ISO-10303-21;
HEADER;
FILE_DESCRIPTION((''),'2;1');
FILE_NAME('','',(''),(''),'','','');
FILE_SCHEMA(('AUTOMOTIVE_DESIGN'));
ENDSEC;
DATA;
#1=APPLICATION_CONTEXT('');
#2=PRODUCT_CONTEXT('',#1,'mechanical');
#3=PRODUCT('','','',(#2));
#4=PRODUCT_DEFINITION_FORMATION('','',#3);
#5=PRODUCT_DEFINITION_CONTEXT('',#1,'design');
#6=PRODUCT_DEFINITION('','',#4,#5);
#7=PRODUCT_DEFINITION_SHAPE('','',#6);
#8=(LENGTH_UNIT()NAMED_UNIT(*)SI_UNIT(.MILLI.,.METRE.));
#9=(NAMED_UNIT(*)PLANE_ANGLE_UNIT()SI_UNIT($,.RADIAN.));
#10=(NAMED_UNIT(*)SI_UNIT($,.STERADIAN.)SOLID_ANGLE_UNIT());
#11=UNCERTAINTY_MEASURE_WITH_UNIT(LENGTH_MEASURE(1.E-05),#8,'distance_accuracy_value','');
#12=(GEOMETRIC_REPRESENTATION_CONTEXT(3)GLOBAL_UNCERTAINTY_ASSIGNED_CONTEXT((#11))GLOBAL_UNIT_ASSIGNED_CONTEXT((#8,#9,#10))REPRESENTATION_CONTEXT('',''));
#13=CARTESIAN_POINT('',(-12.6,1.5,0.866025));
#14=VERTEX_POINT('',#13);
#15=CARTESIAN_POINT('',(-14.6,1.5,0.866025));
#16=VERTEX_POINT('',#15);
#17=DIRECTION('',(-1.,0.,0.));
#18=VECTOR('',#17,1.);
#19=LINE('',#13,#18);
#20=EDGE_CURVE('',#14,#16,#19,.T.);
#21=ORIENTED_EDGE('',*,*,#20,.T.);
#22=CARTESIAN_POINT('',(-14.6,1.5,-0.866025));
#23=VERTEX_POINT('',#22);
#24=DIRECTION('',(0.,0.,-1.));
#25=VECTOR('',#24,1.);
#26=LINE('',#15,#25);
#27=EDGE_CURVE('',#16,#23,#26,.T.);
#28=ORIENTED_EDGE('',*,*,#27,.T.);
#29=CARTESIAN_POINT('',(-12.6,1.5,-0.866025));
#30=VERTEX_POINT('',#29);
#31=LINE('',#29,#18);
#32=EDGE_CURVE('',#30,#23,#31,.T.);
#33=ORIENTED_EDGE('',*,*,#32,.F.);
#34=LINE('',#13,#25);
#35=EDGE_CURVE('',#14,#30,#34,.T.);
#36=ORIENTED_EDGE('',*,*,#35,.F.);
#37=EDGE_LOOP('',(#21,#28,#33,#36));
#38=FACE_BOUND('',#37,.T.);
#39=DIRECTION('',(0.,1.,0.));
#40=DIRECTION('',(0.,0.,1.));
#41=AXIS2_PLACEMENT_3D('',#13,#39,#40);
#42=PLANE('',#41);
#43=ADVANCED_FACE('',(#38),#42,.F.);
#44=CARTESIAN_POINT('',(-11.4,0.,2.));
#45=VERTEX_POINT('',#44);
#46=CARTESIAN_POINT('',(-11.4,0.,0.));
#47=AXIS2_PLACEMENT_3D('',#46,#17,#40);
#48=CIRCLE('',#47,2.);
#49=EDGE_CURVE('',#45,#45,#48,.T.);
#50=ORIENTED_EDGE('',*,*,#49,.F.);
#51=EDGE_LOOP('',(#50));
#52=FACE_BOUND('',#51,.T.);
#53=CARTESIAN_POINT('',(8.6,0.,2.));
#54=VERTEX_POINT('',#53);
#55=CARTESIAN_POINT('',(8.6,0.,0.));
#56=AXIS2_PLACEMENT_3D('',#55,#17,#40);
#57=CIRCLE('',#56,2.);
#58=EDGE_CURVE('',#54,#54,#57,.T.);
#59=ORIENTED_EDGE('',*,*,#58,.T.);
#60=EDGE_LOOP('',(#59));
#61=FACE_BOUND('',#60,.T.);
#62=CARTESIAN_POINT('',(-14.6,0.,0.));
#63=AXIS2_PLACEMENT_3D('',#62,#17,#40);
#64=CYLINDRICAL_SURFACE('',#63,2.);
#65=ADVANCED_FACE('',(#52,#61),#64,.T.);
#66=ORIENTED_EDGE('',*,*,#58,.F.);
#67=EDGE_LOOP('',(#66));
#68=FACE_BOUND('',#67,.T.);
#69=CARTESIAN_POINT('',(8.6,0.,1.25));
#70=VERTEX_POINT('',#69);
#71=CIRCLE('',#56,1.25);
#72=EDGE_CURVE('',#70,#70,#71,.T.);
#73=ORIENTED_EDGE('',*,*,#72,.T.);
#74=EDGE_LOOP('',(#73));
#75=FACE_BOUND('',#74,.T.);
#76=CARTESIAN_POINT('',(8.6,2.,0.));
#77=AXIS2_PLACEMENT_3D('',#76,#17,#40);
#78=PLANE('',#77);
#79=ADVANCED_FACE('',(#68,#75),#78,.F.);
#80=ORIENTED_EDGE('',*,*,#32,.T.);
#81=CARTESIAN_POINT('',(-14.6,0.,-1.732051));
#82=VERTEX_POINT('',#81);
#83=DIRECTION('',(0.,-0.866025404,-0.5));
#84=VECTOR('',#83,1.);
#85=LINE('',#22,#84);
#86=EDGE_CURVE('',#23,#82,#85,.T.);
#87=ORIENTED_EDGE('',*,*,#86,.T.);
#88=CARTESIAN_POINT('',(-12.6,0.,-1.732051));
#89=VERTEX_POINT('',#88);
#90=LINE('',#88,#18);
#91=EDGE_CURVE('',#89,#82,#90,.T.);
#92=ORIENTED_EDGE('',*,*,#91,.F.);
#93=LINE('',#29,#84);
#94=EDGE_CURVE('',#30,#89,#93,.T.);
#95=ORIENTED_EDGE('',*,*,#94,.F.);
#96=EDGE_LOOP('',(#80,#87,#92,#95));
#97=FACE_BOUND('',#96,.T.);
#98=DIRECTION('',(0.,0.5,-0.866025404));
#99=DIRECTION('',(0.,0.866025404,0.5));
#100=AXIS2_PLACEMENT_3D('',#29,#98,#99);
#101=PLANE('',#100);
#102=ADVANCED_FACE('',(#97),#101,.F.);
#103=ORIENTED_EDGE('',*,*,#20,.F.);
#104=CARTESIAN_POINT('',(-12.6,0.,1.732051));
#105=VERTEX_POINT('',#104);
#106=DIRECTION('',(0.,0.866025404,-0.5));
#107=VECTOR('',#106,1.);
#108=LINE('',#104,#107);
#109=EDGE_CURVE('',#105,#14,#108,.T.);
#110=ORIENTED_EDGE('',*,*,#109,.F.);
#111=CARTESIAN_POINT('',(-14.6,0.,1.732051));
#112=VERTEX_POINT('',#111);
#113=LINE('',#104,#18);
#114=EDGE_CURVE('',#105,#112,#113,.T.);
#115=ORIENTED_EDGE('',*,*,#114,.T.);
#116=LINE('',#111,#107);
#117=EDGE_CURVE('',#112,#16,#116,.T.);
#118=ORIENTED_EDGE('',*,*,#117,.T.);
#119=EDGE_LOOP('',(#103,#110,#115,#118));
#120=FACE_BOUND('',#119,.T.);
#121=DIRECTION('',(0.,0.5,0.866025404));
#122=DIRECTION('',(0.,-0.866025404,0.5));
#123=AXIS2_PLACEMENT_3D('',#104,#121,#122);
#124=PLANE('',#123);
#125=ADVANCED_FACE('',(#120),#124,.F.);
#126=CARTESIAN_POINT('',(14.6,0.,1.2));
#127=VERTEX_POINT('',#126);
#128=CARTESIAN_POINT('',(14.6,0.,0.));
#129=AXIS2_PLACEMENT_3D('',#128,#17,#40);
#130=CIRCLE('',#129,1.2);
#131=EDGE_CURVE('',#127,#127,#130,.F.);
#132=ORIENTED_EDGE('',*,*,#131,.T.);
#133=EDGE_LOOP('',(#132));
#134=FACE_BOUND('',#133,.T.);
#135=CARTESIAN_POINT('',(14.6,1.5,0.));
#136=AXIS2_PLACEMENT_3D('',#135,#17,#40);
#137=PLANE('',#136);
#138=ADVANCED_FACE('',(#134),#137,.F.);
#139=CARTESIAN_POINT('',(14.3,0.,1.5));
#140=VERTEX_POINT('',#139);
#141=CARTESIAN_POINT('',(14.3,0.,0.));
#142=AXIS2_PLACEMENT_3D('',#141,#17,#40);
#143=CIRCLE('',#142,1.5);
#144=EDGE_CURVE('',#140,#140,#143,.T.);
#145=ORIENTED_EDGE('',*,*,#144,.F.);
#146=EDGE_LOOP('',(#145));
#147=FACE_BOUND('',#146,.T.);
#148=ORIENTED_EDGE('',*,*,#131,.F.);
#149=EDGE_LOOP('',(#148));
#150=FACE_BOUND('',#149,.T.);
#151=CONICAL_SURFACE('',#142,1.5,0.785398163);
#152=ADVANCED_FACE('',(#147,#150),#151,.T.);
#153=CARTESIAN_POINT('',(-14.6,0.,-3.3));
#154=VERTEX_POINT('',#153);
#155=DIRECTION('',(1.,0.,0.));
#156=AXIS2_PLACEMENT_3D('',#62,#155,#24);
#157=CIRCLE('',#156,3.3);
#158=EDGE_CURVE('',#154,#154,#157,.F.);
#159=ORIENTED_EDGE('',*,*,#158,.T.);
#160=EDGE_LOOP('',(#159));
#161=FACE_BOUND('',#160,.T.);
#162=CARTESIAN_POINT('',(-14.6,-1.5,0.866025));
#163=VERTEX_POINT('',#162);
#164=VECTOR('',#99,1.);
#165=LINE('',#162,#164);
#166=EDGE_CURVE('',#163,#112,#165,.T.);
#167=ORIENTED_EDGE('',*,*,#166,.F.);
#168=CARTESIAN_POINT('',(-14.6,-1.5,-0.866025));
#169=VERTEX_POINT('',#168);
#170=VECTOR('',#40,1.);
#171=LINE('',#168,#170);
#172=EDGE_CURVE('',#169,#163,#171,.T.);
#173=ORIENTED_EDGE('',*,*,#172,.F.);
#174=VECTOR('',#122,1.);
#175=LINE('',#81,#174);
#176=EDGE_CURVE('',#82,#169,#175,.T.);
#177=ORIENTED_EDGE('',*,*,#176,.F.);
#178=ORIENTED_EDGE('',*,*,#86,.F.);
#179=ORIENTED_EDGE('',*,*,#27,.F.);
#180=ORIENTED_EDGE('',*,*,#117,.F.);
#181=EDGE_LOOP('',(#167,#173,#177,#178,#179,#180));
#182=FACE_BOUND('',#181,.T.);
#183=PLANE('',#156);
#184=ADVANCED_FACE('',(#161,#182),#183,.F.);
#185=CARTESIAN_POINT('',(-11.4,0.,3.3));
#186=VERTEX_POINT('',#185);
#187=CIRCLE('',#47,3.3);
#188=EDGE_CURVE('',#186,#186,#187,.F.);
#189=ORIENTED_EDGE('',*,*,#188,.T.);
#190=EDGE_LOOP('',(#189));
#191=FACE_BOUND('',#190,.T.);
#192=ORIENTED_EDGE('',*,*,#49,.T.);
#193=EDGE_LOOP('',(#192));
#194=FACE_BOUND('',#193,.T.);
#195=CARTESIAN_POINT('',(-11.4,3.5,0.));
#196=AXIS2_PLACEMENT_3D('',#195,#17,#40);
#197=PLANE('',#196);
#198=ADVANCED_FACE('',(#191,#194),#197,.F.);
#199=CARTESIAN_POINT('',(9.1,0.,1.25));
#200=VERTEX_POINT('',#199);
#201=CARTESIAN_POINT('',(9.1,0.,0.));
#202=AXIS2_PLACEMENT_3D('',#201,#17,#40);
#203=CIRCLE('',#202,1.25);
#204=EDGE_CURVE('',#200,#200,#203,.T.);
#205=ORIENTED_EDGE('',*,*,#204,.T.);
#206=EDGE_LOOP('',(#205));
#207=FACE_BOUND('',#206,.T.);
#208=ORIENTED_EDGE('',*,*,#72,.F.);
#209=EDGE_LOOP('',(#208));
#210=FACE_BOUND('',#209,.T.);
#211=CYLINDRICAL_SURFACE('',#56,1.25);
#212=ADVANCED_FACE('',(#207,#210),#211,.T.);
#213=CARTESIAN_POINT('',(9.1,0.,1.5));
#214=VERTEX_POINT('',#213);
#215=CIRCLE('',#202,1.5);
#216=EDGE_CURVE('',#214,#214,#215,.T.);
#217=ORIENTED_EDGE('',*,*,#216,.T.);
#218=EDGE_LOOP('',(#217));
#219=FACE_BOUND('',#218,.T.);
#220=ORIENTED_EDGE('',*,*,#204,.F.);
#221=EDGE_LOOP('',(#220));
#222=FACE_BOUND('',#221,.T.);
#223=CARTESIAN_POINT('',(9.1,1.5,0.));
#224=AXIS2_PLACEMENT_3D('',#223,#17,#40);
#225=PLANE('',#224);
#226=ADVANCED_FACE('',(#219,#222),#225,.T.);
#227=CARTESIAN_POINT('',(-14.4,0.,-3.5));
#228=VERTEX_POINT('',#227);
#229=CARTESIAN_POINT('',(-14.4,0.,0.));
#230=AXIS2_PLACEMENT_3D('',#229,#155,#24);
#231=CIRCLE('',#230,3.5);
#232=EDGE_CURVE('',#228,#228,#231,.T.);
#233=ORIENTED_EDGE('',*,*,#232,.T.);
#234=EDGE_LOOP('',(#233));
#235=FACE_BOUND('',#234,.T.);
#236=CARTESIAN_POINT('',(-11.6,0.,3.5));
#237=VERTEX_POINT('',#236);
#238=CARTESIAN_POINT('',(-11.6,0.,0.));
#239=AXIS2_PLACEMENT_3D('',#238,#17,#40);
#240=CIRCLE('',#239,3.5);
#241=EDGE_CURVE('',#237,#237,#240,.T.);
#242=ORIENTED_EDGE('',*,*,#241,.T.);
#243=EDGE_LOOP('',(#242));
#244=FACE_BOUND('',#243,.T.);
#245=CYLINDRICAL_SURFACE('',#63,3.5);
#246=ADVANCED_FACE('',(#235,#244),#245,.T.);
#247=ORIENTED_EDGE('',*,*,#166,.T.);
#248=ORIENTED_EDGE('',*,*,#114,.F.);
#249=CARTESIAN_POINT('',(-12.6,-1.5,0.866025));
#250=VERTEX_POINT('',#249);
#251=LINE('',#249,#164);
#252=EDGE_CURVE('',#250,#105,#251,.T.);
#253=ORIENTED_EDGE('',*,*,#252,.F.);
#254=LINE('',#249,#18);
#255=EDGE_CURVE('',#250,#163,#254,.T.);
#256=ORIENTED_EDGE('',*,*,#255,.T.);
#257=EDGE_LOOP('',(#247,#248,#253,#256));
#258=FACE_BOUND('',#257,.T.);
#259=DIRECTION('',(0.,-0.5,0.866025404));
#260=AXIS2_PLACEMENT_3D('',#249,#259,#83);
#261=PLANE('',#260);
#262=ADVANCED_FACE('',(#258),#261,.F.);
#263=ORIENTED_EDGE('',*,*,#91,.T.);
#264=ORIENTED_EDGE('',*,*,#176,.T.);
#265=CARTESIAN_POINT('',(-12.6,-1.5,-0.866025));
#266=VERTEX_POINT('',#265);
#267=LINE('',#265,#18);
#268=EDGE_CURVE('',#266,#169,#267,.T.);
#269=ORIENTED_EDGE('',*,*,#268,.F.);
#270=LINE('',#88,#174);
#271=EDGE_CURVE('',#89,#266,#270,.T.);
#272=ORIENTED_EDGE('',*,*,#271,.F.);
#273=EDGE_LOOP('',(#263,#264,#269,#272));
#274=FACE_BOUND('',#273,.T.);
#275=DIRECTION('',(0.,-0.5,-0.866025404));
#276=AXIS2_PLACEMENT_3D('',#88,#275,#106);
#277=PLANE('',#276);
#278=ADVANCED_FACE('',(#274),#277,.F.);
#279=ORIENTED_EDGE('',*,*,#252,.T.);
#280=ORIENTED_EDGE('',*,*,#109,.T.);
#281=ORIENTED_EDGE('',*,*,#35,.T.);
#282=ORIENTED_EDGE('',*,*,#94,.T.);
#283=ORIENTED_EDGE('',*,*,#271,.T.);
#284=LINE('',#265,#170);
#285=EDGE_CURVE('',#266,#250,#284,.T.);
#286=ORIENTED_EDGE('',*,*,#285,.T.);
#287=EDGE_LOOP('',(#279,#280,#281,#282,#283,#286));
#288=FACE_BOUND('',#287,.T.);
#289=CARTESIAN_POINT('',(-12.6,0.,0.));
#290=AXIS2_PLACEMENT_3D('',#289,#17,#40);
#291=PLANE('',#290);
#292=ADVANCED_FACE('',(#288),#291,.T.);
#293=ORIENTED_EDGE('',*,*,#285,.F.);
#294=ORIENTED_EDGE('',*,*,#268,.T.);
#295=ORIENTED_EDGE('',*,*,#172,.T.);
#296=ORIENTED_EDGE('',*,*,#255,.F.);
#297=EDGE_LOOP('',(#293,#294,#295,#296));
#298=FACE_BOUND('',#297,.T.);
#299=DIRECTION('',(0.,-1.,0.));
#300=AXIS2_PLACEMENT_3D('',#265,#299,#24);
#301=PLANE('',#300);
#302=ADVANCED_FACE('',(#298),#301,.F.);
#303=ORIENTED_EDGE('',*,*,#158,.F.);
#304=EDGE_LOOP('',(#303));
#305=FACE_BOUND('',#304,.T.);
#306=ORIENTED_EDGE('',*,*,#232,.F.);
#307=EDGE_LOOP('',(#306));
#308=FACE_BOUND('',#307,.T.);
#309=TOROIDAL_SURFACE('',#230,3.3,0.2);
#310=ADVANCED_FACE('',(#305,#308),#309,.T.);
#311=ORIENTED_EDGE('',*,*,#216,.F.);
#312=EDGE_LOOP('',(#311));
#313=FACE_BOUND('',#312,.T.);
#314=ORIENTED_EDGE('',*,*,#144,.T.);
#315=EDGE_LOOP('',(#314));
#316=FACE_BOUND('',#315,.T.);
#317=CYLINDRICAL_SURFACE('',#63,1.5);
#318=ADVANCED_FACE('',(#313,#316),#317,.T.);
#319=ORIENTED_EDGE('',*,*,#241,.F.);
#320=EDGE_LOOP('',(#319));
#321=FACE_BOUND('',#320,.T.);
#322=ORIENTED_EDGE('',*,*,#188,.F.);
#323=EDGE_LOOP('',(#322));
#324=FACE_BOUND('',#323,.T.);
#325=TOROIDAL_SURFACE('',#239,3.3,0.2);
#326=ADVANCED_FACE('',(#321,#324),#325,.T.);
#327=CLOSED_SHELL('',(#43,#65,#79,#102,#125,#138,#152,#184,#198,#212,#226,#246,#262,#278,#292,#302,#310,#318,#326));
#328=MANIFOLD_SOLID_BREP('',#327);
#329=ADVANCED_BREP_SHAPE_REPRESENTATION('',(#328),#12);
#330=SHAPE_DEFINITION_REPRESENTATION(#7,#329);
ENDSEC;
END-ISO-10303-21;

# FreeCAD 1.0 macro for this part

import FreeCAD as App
import Part
import Sketcher

V = App.Vector
Q = App.Units.Quantity


def edges_at(feature, points):
    """Names of the edges that pass closest to the given points."""
    edges = feature.Shape.Edges
    near = lambda p: min(range(len(edges)), key=lambda i: edges[i].distToShape(Part.Vertex(*p))[0])
    return sorted({f"Edge{near(p) + 1}" for p in points})


def add_polygon(sketch, points):
    """Adds a closed chain of lines whose ends are joined by coincident constraints."""
    first, n = sketch.GeometryCount, len(points)
    for a, b in zip(points, points[1:] + points[:1]):
        sketch.addGeometry(Part.LineSegment(App.Vector(*a, 0), App.Vector(*b, 0)), False)
    for i in range(n):
        sketch.addConstraint(Sketcher.Constraint("Coincident", first + i, 2, first + (i + 1) % n, 1))

doc = App.newDocument("Part")
body = doc.addObject("PartDesign::Body", "Body")

# Sketch on XY plane
sketch1 = body.newObject("Sketcher::SketchObject", "Sketch")
sketch1.AttachmentSupport = (doc.getObject("XY_Plane"), [""])
sketch1.MapMode = "FlatFace"
add_polygon(sketch1, [(-14.6, 3.5), (-14.6, 0), (14.6, 0), (14.6, 1.5), (8.6, 1.5), (8.6, 2), (-11.4, 2), (-11.4, 3.5)])  # lines 0-7
sketch1.addConstraint(Sketcher.Constraint("Vertical", 0))
sketch1.addConstraint(Sketcher.Constraint("Horizontal", 1))
sketch1.addConstraint(Sketcher.Constraint("Vertical", 2))
sketch1.addConstraint(Sketcher.Constraint("Horizontal", 3))
sketch1.addConstraint(Sketcher.Constraint("Vertical", 4))
sketch1.addConstraint(Sketcher.Constraint("Horizontal", 5))
sketch1.addConstraint(Sketcher.Constraint("Vertical", 6))
sketch1.addConstraint(Sketcher.Constraint("Horizontal", 7))
sketch1.addConstraint(Sketcher.Constraint("Symmetric", 0, 2, 1, 2, -1, 1))
sketch1.addConstraint(Sketcher.Constraint("Equal", 2, 6))
sketch1.addConstraint(Sketcher.Constraint("DistanceX", 3, 2, 3, 1, 6.0))
sketch1.addConstraint(Sketcher.Constraint("DistanceX", 5, 2, 5, 1, 20.0))
sketch1.addConstraint(Sketcher.Constraint("DistanceX", 1, 1, 1, 2, 29.2))
sketch1.addConstraint(Sketcher.Constraint("DistanceY", 0, 2, 0, 1, 3.5))
sketch1.addConstraint(Sketcher.Constraint("DistanceY", 2, 1, 2, 2, 1.5))
revolution = body.newObject("PartDesign::Revolution", "Revolution")
revolution.Profile = sketch1
revolution.ReferenceAxis = (sketch1, ["H_Axis"])
revolution.Angle = 360
doc.recompute()

fillet = body.newObject("PartDesign::Fillet", "Fillet")
fillet.Base = (revolution, edges_at(revolution, [(-11.4, 0, -3.5), (-14.6, 0, -3.5)]))
fillet.Radius = 0.2
doc.recompute()

chamfer = body.newObject("PartDesign::Chamfer", "Chamfer")
chamfer.Base = (fillet, edges_at(fillet, [(14.6, 0, -1.5)]))
chamfer.Size = 0.3

# Sketch on XY plane
sketch2 = body.newObject("Sketcher::SketchObject", "Sketch001")
sketch2.AttachmentSupport = (doc.getObject("XY_Plane"), [""])
sketch2.MapMode = "FlatFace"
add_polygon(sketch2, [(8.6, 1.5), (8.6, 1.25), (9.1, 1.25), (9.1, 1.5)])  # lines 0-3
sketch2.addConstraint(Sketcher.Constraint("Vertical", 0))
sketch2.addConstraint(Sketcher.Constraint("Horizontal", 1))
sketch2.addConstraint(Sketcher.Constraint("Vertical", 2))
sketch2.addConstraint(Sketcher.Constraint("Horizontal", 3))
sketch2.addConstraint(Sketcher.Constraint("DistanceX", 1, 1, 1, 2, 0.5))
sketch2.addConstraint(Sketcher.Constraint("DistanceY", 0, 2, 0, 1, 0.25))
sketch2.addConstraint(Sketcher.Constraint("DistanceX", -1, 1, 0, 2, 8.6))
sketch2.addConstraint(Sketcher.Constraint("DistanceY", -1, 1, 2, 2, 1.5))
groove = body.newObject("PartDesign::Groove", "Groove")
groove.Profile = sketch2
groove.ReferenceAxis = (sketch2, ["H_Axis"])
groove.Angle = 360

# Sketch on YZ plane
sketch3 = body.newObject("Sketcher::SketchObject", "Sketch002")
sketch3.AttachmentSupport = (doc.getObject("YZ_Plane"), [""])
sketch3.MapMode = "FlatFace"
sketch3.AttachmentOffset = App.Placement(V(0, 0, -14.6), App.Rotation())
add_polygon(sketch3, [(0, 1.7), (1.5, 0.9), (1.5, -0.9), (0, -1.7), (-1.5, -0.9), (-1.5, 0.9)])  # lines 0-5
sketch3.addConstraint(Sketcher.Constraint("Vertical", 1))
sketch3.addConstraint(Sketcher.Constraint("Vertical", 4))
sketch3.addConstraint(Sketcher.Constraint("Symmetric", 0, 2, 3, 2, -1, 1))
sketch3.addConstraint(Sketcher.Constraint("Symmetric", 2, 2, 5, 2, -1, 1))
sketch3.addConstraint(Sketcher.Constraint("PointOnObject", 2, 2, -2))
sketch3.addConstraint(Sketcher.Constraint("Parallel", 2, 5))
sketch3.addConstraint(Sketcher.Constraint("Horizontal", 1, 2, 3, 2))
sketch3.addConstraint(Sketcher.Constraint("Angle", 0, Q("-30 deg")))
sketch3.addConstraint(Sketcher.Constraint("DistanceX", 3, 2, 1, 2, 3.0))
sketch3.addConstraint(Sketcher.Constraint("DistanceY", 1, 2, 1, 1, 1.732051))
pocket1 = body.newObject("PartDesign::Pocket", "Pocket")
pocket1.Profile = sketch3
pocket1.Length = 2
pocket1.Reversed = True

doc.recompute()
